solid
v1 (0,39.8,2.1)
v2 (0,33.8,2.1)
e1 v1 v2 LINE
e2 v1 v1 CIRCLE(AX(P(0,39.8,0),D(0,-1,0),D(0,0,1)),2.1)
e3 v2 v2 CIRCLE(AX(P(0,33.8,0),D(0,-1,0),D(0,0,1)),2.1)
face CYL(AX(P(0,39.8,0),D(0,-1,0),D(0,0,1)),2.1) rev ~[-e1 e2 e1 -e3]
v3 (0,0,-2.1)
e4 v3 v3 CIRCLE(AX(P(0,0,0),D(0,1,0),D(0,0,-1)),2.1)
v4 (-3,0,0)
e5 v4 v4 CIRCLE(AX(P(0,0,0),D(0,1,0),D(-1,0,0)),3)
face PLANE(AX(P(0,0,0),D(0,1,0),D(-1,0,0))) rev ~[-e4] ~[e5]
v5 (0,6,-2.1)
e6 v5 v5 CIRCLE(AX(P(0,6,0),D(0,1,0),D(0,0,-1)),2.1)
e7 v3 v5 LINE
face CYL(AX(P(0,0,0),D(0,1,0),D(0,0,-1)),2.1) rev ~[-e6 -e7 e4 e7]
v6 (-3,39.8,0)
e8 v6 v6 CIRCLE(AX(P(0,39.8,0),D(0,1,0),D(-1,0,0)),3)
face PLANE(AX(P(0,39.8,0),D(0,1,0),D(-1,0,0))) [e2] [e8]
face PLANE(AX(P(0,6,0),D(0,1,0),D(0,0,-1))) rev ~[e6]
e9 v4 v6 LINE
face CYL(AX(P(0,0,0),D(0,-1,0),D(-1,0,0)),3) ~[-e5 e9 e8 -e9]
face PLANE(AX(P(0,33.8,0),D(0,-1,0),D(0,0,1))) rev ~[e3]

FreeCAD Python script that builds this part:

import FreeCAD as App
import Part
import Sketcher

V = App.Vector

doc = App.newDocument("Part")
body = doc.addObject("PartDesign::Body", "Body")

# Sketch on XZ plane
sketch1 = doc.addObject("Sketcher::SketchObject", "Sketch")
body.addObject(sketch1)
sketch1.AttachmentSupport = (doc.XZ_Plane, [""])
sketch1.MapMode = "FlatFace"
sketch1.addGeometry(Part.Circle(V(0, 0, 0), V(0, 0, 1), 3), False)
sketch1.addConstraint([
    Sketcher.Constraint("Coincident", 0, 3, -1, 1),
    Sketcher.Constraint("Diameter", 0, 6.0),
])
pad1 = doc.addObject("PartDesign::Pad", "Pad")
body.addObject(pad1)
pad1.Profile = sketch1
pad1.Length = 39.8
pad1.Reversed = True

# Sketch on XZ plane
sketch2 = doc.addObject("Sketcher::SketchObject", "Sketch001")
body.addObject(sketch2)
sketch2.AttachmentSupport = (doc.XZ_Plane, [""])
sketch2.MapMode = "FlatFace"
sketch2.addGeometry(Part.Circle(V(0, 0, 0), V(0, 0, 1), 2.1), False)
sketch2.addConstraint([
    Sketcher.Constraint("Coincident", 0, 3, -1, 1),
    Sketcher.Constraint("Diameter", 0, 4.2),
])
doc.recompute()
hole = doc.addObject("PartDesign::Hole", "Hole")
body.addObject(hole)
hole.Profile = sketch2
hole.ThreadType = "None"
hole.Diameter = 4.2
hole.DepthType = "Dimension"
hole.Depth = 6
hole.DrillPoint = "Flat"

# Sketch on XZ plane
sketch3 = doc.addObject("Sketcher::SketchObject", "Sketch002")
body.addObject(sketch3)
sketch3.AttachmentSupport = (doc.XZ_Plane, [""])
sketch3.MapMode = "FlatFace"
sketch3.AttachmentOffset = App.Placement(V(0, 0, -39.8), App.Rotation())
sketch3.addGeometry(Part.Circle(V(0, 0, 0), V(0, 0, 1), 2.1), False)
sketch3.addConstraint([
    Sketcher.Constraint("Coincident", 0, 3, -1, 1),
    Sketcher.Constraint("Diameter", 0, 4.2),
])
doc.recompute()
hole2 = doc.addObject("PartDesign::Hole", "Hole001")
body.addObject(hole2)
hole2.Profile = sketch3
hole2.ThreadType = "None"
hole2.Diameter = 4.2
hole2.DepthType = "Dimension"
hole2.Depth = 6
hole2.DrillPoint = "Flat"
hole2.Reversed = True

doc.recompute()
